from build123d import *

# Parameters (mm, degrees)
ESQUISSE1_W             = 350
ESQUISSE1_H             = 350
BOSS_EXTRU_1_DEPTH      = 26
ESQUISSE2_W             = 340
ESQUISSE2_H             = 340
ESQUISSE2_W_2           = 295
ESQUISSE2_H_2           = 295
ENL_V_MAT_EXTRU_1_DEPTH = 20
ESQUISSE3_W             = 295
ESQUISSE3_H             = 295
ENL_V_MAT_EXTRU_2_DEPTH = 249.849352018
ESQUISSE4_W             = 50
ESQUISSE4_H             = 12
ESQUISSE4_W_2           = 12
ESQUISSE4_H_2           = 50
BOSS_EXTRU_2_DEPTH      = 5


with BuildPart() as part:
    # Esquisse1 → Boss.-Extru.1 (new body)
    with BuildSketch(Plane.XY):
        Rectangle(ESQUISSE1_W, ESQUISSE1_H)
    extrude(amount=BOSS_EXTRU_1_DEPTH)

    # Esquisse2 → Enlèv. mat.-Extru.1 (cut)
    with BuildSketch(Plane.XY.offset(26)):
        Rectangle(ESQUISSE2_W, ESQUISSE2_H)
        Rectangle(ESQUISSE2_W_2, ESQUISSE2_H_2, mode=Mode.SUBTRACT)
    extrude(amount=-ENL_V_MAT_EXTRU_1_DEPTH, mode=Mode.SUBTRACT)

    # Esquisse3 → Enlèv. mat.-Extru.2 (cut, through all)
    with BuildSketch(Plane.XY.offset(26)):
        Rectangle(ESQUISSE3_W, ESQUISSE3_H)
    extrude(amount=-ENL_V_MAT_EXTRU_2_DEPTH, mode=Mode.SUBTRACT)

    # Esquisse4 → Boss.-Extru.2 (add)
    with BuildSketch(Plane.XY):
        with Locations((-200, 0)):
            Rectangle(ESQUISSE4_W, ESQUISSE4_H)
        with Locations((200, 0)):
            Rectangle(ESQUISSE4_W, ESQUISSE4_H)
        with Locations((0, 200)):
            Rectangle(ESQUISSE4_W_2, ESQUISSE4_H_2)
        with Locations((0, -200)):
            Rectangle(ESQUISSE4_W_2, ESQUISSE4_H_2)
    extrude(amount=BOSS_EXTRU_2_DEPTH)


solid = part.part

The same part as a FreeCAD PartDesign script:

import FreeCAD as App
import Part
import Sketcher
from FreeCAD import Vector

doc = App.newDocument("Part")
body = doc.addObject("PartDesign::Body", "Body")

# Sketch on XY plane
sketch1 = doc.addObject("Sketcher::SketchObject", "Sketch")
body.addObject(sketch1)
sketch1.AttachmentSupport = (doc.XY_Plane, [""])
sketch1.MapMode = "FlatFace"
sketch1.addGeometry([
    Part.LineSegment(Vector(-175, 175, 0), Vector(-175, -175, 0)),
    Part.LineSegment(Vector(-175, -175, 0), Vector(175, -175, 0)),
    Part.LineSegment(Vector(175, -175, 0), Vector(175, 175, 0)),
    Part.LineSegment(Vector(175, 175, 0), Vector(-175, 175, 0)),
], False)
sketch1.addConstraint([
    Sketcher.Constraint("Coincident", 0, 2, 1, 1),
    Sketcher.Constraint("Coincident", 1, 2, 2, 1),
    Sketcher.Constraint("Coincident", 2, 2, 3, 1),
    Sketcher.Constraint("Coincident", 3, 2, 0, 1),
    Sketcher.Constraint("Vertical", 0),
    Sketcher.Constraint("Horizontal", 1),
    Sketcher.Constraint("Vertical", 2),
    Sketcher.Constraint("Horizontal", 3),
    Sketcher.Constraint("Symmetric", 0, 2, 2, 2, -1, 1),
    Sketcher.Constraint("Equal", 3, 0),
    Sketcher.Constraint("DistanceX", 1, 1, 1, 2, 350.0),
])
pad1 = doc.addObject("PartDesign::Pad", "Pad")
body.addObject(pad1)
pad1.Profile = sketch1
pad1.Length = 26

# Sketch on XY plane
sketch2 = doc.addObject("Sketcher::SketchObject", "Sketch001")
body.addObject(sketch2)
sketch2.AttachmentSupport = (doc.XY_Plane, [""])
sketch2.MapMode = "FlatFace"
sketch2.AttachmentOffset = App.Placement(Vector(0, 0, 26), App.Rotation())
sketch2.addGeometry([
    Part.LineSegment(Vector(-170, 170, 0), Vector(-170, -170, 0)),  # 0
    Part.LineSegment(Vector(-170, -170, 0), Vector(170, -170, 0)),  # 1
    Part.LineSegment(Vector(170, -170, 0), Vector(170, 170, 0)),  # 2
    Part.LineSegment(Vector(170, 170, 0), Vector(-170, 170, 0)),  # 3
    Part.LineSegment(Vector(148, -148, 0), Vector(-148, -148, 0)),  # 4
    Part.LineSegment(Vector(-148, -148, 0), Vector(-148, 148, 0)),  # 5
    Part.LineSegment(Vector(-148, 148, 0), Vector(148, 148, 0)),  # 6
    Part.LineSegment(Vector(148, 148, 0), Vector(148, -148, 0)),  # 7
], False)
sketch2.addConstraint([
    Sketcher.Constraint("Coincident", 0, 2, 1, 1),
    Sketcher.Constraint("Coincident", 1, 2, 2, 1),
    Sketcher.Constraint("Coincident", 2, 2, 3, 1),
    Sketcher.Constraint("Coincident", 3, 2, 0, 1),
    Sketcher.Constraint("Coincident", 4, 2, 5, 1),
    Sketcher.Constraint("Coincident", 5, 2, 6, 1),
    Sketcher.Constraint("Coincident", 6, 2, 7, 1),
    Sketcher.Constraint("Coincident", 7, 2, 4, 1),
    Sketcher.Constraint("Vertical", 0),
    Sketcher.Constraint("Horizontal", 1),
    Sketcher.Constraint("Vertical", 2),
    Sketcher.Constraint("Horizontal", 3),
    Sketcher.Constraint("Horizontal", 4),
    Sketcher.Constraint("Vertical", 5),
    Sketcher.Constraint("Horizontal", 6),
    Sketcher.Constraint("Vertical", 7),
    Sketcher.Constraint("Symmetric", 0, 2, 2, 2, -1, 1),
    Sketcher.Constraint("Symmetric", 4, 2, 6, 2, -1, 1),
    Sketcher.Constraint("Equal", 3, 0),
    Sketcher.Constraint("Equal", 6, 5),
    Sketcher.Constraint("DistanceX", 1, 1, 1, 2, 340.0),
    Sketcher.Constraint("DistanceX", 4, 2, 4, 1, 295.0),
])
pocket1 = doc.addObject("PartDesign::Pocket", "Pocket")
body.addObject(pocket1)
pocket1.Profile = sketch2
pocket1.Length = 20

# Sketch on XY plane
sketch3 = doc.addObject("Sketcher::SketchObject", "Sketch002")
body.addObject(sketch3)
sketch3.AttachmentSupport = (doc.XY_Plane, [""])
sketch3.MapMode = "FlatFace"
sketch3.AttachmentOffset = App.Placement(Vector(0, 0, 26), App.Rotation())
sketch3.addGeometry([
    Part.LineSegment(Vector(-148, 148, 0), Vector(-148, -148, 0)),
    Part.LineSegment(Vector(-148, -148, 0), Vector(148, -148, 0)),
    Part.LineSegment(Vector(148, -148, 0), Vector(148, 148, 0)),
    Part.LineSegment(Vector(148, 148, 0), Vector(-148, 148, 0)),
], False)
sketch3.addConstraint([
    Sketcher.Constraint("Coincident", 0, 2, 1, 1),
    Sketcher.Constraint("Coincident", 1, 2, 2, 1),
    Sketcher.Constraint("Coincident", 2, 2, 3, 1),
    Sketcher.Constraint("Coincident", 3, 2, 0, 1),
    Sketcher.Constraint("Vertical", 0),
    Sketcher.Constraint("Horizontal", 1),
    Sketcher.Constraint("Vertical", 2),
    Sketcher.Constraint("Horizontal", 3),
    Sketcher.Constraint("Symmetric", 0, 2, 2, 2, -1, 1),
    Sketcher.Constraint("Equal", 3, 0),
    Sketcher.Constraint("DistanceX", 1, 1, 1, 2, 295.0),
])
pocket2 = doc.addObject("PartDesign::Pocket", "Pocket001")
body.addObject(pocket2)
pocket2.Profile = sketch3
pocket2.Type = "ThroughAll"

# Sketch on XY plane
sketch4 = doc.addObject("Sketcher::SketchObject", "Sketch003")
body.addObject(sketch4)
sketch4.AttachmentSupport = (doc.XY_Plane, [""])
sketch4.MapMode = "FlatFace"
sketch4.addGeometry([
    Part.LineSegment(Vector(-225, 6, 0), Vector(-225, -6, 0)),  # 0
    Part.LineSegment(Vector(-225, -6, 0), Vector(-175, -6, 0)),  # 1
    Part.LineSegment(Vector(-175, -6, 0), Vector(-175, 6, 0)),  # 2
    Part.LineSegment(Vector(-175, 6, 0), Vector(-225, 6, 0)),  # 3
    Part.LineSegment(Vector(175, 6, 0), Vector(175, -6, 0)),  # 4
    Part.LineSegment(Vector(175, -6, 0), Vector(225, -6, 0)),  # 5
    Part.LineSegment(Vector(225, -6, 0), Vector(225, 6, 0)),  # 6
    Part.LineSegment(Vector(225, 6, 0), Vector(175, 6, 0)),  # 7
    Part.LineSegment(Vector(-6, 225, 0), Vector(-6, 175, 0)),  # 8
    Part.LineSegment(Vector(-6, 175, 0), Vector(6, 175, 0)),  # 9
    Part.LineSegment(Vector(6, 175, 0), Vector(6, 225, 0)),  # 10
    Part.LineSegment(Vector(6, 225, 0), Vector(-6, 225, 0)),  # 11
    Part.LineSegment(Vector(-6, -175, 0), Vector(-6, -225, 0)),  # 12
    Part.LineSegment(Vector(-6, -225, 0), Vector(6, -225, 0)),  # 13
    Part.LineSegment(Vector(6, -225, 0), Vector(6, -175, 0)),  # 14
    Part.LineSegment(Vector(6, -175, 0), Vector(-6, -175, 0)),  # 15
], False)
sketch4.addConstraint([
    Sketcher.Constraint("Coincident", 0, 2, 1, 1),
    Sketcher.Constraint("Coincident", 1, 2, 2, 1),
    Sketcher.Constraint("Coincident", 2, 2, 3, 1),
    Sketcher.Constraint("Coincident", 3, 2, 0, 1),
    Sketcher.Constraint("Coincident", 4, 2, 5, 1),
    Sketcher.Constraint("Coincident", 5, 2, 6, 1),
    Sketcher.Constraint("Coincident", 6, 2, 7, 1),
    Sketcher.Constraint("Coincident", 7, 2, 4, 1),
    Sketcher.Constraint("Coincident", 8, 2, 9, 1),
    Sketcher.Constraint("Coincident", 9, 2, 10, 1),
    Sketcher.Constraint("Coincident", 10, 2, 11, 1),
    Sketcher.Constraint("Coincident", 11, 2, 8, 1),
    Sketcher.Constraint("Coincident", 12, 2, 13, 1),
    Sketcher.Constraint("Coincident", 13, 2, 14, 1),
    Sketcher.Constraint("Coincident", 14, 2, 15, 1),
    Sketcher.Constraint("Coincident", 15, 2, 12, 1),
    Sketcher.Constraint("Vertical", 0),
    Sketcher.Constraint("Horizontal", 1),
    Sketcher.Constraint("Vertical", 2),
    Sketcher.Constraint("Horizontal", 3),
    Sketcher.Constraint("Vertical", 4),
    Sketcher.Constraint("Horizontal", 5),
    Sketcher.Constraint("Vertical", 6),
    Sketcher.Constraint("Horizontal", 7),
    Sketcher.Constraint("Vertical", 8),
    Sketcher.Constraint("Horizontal", 9),
    Sketcher.Constraint("Vertical", 10),
    Sketcher.Constraint("Horizontal", 11),
    Sketcher.Constraint("Vertical", 12),
    Sketcher.Constraint("Horizontal", 13),
    Sketcher.Constraint("Vertical", 14),
    Sketcher.Constraint("Horizontal", 15),
    Sketcher.Constraint("Symmetric", 2, 2, 4, 2, -1, 1),
    Sketcher.Constraint("Symmetric", 0, 2, 6, 2, -1, 1),
    Sketcher.Constraint("Symmetric", 10, 2, 12, 2, -1, 1),
    Sketcher.Constraint("Symmetric", 8, 2, 14, 2, -1, 1),
    Sketcher.Constraint("Horizontal", 1, 2, 4, 2),
    Sketcher.Constraint("Vertical", 11, 2, 12, 2),
    Sketcher.Constraint("Equal", 15, 0),
    Sketcher.Constraint("Equal", 7, 8),
    Sketcher.Constraint("DistanceX", 1, 1, 1, 2, 50.0),
    Sketcher.Constraint("DistanceX", 9, 1, 9, 2, 12.0),
    Sketcher.Constraint("DistanceX", 0, 2, -1, 1, 225.0),
    Sketcher.Constraint("DistanceY", -1, 1, 8, 2, 175.0),
])
pad2 = doc.addObject("PartDesign::Pad", "Pad001")
body.addObject(pad2)
pad2.Profile = sketch4
pad2.Length = 5

doc.recompute()
